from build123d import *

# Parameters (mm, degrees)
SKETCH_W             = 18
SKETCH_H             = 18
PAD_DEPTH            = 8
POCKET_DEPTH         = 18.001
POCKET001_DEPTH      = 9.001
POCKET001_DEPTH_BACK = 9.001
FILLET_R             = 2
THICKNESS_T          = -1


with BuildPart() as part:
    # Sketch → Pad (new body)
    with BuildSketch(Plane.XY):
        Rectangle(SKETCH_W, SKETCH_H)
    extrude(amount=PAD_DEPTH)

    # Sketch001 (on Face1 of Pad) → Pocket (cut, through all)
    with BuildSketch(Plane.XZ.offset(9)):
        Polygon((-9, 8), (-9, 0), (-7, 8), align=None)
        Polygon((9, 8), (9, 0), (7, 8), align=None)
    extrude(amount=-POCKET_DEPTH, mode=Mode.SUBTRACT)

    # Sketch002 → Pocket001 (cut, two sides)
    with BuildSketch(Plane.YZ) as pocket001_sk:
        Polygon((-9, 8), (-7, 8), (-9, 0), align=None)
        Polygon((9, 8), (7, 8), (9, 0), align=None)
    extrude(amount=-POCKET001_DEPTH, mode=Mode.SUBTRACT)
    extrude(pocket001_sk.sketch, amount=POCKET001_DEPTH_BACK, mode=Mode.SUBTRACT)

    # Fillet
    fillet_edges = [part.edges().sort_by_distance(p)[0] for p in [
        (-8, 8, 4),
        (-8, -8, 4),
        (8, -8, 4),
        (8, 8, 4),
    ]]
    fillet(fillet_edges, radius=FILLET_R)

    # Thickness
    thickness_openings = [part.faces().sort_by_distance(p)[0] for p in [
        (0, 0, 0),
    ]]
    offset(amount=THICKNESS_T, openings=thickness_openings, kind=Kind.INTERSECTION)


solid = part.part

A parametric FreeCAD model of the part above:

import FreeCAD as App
import Part
import Sketcher
from FreeCAD import Vector
Q = App.Units.Quantity


def edges_at(feature, points):
    """Names of the edges that pass closest to the given points."""
    edges = feature.Shape.Edges
    near = lambda p: min(range(len(edges)), key=lambda i: edges[i].distToShape(Part.Vertex(*p))[0])
    return sorted({f"Edge{near(p) + 1}" for p in points})


def faces_at(feature, points):
    """Names of the faces that lie closest to the given points."""
    faces = feature.Shape.Faces
    near = lambda p: min(range(len(faces)), key=lambda i: faces[i].distToShape(Part.Vertex(*p))[0])
    return sorted({f"Face{near(p) + 1}" for p in points})


def add_polygon(sketch, points):
    """Adds a closed chain of lines whose ends are joined by coincident constraints."""
    first, n = sketch.GeometryCount, len(points)
    for a, b in zip(points, points[1:] + points[:1]):
        sketch.addGeometry(Part.LineSegment(App.Vector(*a, 0), App.Vector(*b, 0)), False)
    for i in range(n):
        sketch.addConstraint(Sketcher.Constraint("Coincident", first + i, 2, first + (i + 1) % n, 1))

doc = App.newDocument("Part")
params = doc.addObject("Spreadsheet::Sheet", "Params")
for row, (alias, value) in enumerate([
    ("sketch1_width", "18 mm"),
    ("pad1_length", "8 mm"),
    ("sketch2_width", "2 mm"),
    ("sketch2_height", "8 mm"),
    ("sketch3_width", "2 mm"),
    ("sketch3_height", "8 mm"),
    ("fillet_radius", "2 mm"),
    ("thickness_wall", "1 mm"),
], start=1):
    params.set(f"A{row}", alias)
    params.set(f"B{row}", "=" + value)
    params.setAlias(f"B{row}", alias)

body = doc.addObject("PartDesign::Body", "Body")

# Sketch on XY plane
sketch1 = doc.addObject("Sketcher::SketchObject", "Sketch")
body.addObject(sketch1)
sketch1.AttachmentSupport = (doc.XY_Plane, [""])
sketch1.MapMode = "FlatFace"
add_polygon(sketch1, [(-9, 9), (-9, -9), (9, -9), (9, 9)])  # lines 0-3
sketch1.addConstraint([
    Sketcher.Constraint("Vertical", 0),
    Sketcher.Constraint("Horizontal", 1),
    Sketcher.Constraint("Vertical", 2),
    Sketcher.Constraint("Horizontal", 3),
    Sketcher.Constraint("Symmetric", 0, 2, 2, 2, -1, 1),
    Sketcher.Constraint("Equal", 3, 0),
    Sketcher.Constraint("DistanceX", 1, 1, 1, 2, Q("18 mm")),
])
sketch1.setExpression("Constraints[10]", "Params.sketch1_width")
pad1 = doc.addObject("PartDesign::Pad", "Pad")
body.addObject(pad1)
pad1.Profile = sketch1
pad1.setExpression("Length", "Params.pad1_length")

# Sketch on XZ plane
sketch2 = doc.addObject("Sketcher::SketchObject", "Sketch001")
body.addObject(sketch2)
sketch2.AttachmentSupport = (doc.XZ_Plane, [""])
sketch2.MapMode = "FlatFace"
sketch2.AttachmentOffset = App.Placement(Vector(0, 0, 9), App.Rotation())
add_polygon(sketch2, [(-9, 8), (-9, 0), (-7, 8)])  # lines 0-2
add_polygon(sketch2, [(9, 0), (9, 8), (7, 8)])  # lines 3-5
sketch2.addConstraint([
    Sketcher.Constraint("Vertical", 0),
    Sketcher.Constraint("Horizontal", 2),
    Sketcher.Constraint("Vertical", 3),
    Sketcher.Constraint("Horizontal", 4),
    Sketcher.Constraint("Symmetric", 0, 2, 5, 2, -1, 1),
    Sketcher.Constraint("Symmetric", 1, 2, 4, 2, -2),
    Sketcher.Constraint("PointOnObject", 0, 2, -1),
    Sketcher.Constraint("DistanceX", 2, 2, 2, 1, Q("2 mm")),
    Sketcher.Constraint("DistanceY", 0, 2, 0, 1, Q("8 mm")),
    Sketcher.Constraint("DistanceX", 0, 2, -1, 1, Q("9 mm")),
])
sketch2.setExpression("Constraints[13]", "Params.sketch2_width")
sketch2.setExpression("Constraints[14]", "Params.sketch2_height")
pocket1 = doc.addObject("PartDesign::Pocket", "Pocket")
body.addObject(pocket1)
pocket1.Profile = sketch2
pocket1.Type = "ThroughAll"

# Sketch on YZ plane
sketch3 = doc.addObject("Sketcher::SketchObject", "Sketch002")
body.addObject(sketch3)
sketch3.AttachmentSupport = (doc.YZ_Plane, [""])
sketch3.MapMode = "FlatFace"
add_polygon(sketch3, [(-7, 8), (-9, 8), (-9, 0)])  # lines 0-2
add_polygon(sketch3, [(9, 8), (7, 8), (9, 0)])  # lines 3-5
sketch3.addConstraint([
    Sketcher.Constraint("Horizontal", 0),
    Sketcher.Constraint("Vertical", 1),
    Sketcher.Constraint("Horizontal", 3),
    Sketcher.Constraint("Vertical", 5),
    Sketcher.Constraint("Symmetric", 1, 2, 4, 2, -1, 1),
    Sketcher.Constraint("Symmetric", 2, 2, 3, 2, -2),
    Sketcher.Constraint("PointOnObject", 1, 2, -1),
    Sketcher.Constraint("DistanceX", 0, 2, 0, 1, Q("2 mm")),
    Sketcher.Constraint("DistanceY", 1, 2, 1, 1, Q("8 mm")),
    Sketcher.Constraint("DistanceX", 0, 2, -1, 1, Q("9 mm")),
])
sketch3.setExpression("Constraints[13]", "Params.sketch3_width")
sketch3.setExpression("Constraints[14]", "Params.sketch3_height")
pocket2 = doc.addObject("PartDesign::Pocket", "Pocket001")
body.addObject(pocket2)
pocket2.Profile = sketch3
pocket2.Type = "ThroughAll"
pocket2.Midplane = True
doc.recompute()

fillet = doc.addObject("PartDesign::Fillet", "Fillet")
body.addObject(fillet)
fillet.Base = (pocket2, edges_at(pocket2, [
    (-8, 8, 4),
    (-8, -8, 4),
    (8, -8, 4),
    (8, 8, 4),
]))
fillet.setExpression("Radius", "Params.fillet_radius")
doc.recompute()

thickness = doc.addObject("PartDesign::Thickness", "Thickness")
body.addObject(thickness)
thickness.Base = (fillet, faces_at(fillet, [(0, 0, 0)]))
thickness.setExpression("Value", "Params.thickness_wall")
thickness.Reversed = True
thickness.Join = "Intersection"

doc.recompute()
